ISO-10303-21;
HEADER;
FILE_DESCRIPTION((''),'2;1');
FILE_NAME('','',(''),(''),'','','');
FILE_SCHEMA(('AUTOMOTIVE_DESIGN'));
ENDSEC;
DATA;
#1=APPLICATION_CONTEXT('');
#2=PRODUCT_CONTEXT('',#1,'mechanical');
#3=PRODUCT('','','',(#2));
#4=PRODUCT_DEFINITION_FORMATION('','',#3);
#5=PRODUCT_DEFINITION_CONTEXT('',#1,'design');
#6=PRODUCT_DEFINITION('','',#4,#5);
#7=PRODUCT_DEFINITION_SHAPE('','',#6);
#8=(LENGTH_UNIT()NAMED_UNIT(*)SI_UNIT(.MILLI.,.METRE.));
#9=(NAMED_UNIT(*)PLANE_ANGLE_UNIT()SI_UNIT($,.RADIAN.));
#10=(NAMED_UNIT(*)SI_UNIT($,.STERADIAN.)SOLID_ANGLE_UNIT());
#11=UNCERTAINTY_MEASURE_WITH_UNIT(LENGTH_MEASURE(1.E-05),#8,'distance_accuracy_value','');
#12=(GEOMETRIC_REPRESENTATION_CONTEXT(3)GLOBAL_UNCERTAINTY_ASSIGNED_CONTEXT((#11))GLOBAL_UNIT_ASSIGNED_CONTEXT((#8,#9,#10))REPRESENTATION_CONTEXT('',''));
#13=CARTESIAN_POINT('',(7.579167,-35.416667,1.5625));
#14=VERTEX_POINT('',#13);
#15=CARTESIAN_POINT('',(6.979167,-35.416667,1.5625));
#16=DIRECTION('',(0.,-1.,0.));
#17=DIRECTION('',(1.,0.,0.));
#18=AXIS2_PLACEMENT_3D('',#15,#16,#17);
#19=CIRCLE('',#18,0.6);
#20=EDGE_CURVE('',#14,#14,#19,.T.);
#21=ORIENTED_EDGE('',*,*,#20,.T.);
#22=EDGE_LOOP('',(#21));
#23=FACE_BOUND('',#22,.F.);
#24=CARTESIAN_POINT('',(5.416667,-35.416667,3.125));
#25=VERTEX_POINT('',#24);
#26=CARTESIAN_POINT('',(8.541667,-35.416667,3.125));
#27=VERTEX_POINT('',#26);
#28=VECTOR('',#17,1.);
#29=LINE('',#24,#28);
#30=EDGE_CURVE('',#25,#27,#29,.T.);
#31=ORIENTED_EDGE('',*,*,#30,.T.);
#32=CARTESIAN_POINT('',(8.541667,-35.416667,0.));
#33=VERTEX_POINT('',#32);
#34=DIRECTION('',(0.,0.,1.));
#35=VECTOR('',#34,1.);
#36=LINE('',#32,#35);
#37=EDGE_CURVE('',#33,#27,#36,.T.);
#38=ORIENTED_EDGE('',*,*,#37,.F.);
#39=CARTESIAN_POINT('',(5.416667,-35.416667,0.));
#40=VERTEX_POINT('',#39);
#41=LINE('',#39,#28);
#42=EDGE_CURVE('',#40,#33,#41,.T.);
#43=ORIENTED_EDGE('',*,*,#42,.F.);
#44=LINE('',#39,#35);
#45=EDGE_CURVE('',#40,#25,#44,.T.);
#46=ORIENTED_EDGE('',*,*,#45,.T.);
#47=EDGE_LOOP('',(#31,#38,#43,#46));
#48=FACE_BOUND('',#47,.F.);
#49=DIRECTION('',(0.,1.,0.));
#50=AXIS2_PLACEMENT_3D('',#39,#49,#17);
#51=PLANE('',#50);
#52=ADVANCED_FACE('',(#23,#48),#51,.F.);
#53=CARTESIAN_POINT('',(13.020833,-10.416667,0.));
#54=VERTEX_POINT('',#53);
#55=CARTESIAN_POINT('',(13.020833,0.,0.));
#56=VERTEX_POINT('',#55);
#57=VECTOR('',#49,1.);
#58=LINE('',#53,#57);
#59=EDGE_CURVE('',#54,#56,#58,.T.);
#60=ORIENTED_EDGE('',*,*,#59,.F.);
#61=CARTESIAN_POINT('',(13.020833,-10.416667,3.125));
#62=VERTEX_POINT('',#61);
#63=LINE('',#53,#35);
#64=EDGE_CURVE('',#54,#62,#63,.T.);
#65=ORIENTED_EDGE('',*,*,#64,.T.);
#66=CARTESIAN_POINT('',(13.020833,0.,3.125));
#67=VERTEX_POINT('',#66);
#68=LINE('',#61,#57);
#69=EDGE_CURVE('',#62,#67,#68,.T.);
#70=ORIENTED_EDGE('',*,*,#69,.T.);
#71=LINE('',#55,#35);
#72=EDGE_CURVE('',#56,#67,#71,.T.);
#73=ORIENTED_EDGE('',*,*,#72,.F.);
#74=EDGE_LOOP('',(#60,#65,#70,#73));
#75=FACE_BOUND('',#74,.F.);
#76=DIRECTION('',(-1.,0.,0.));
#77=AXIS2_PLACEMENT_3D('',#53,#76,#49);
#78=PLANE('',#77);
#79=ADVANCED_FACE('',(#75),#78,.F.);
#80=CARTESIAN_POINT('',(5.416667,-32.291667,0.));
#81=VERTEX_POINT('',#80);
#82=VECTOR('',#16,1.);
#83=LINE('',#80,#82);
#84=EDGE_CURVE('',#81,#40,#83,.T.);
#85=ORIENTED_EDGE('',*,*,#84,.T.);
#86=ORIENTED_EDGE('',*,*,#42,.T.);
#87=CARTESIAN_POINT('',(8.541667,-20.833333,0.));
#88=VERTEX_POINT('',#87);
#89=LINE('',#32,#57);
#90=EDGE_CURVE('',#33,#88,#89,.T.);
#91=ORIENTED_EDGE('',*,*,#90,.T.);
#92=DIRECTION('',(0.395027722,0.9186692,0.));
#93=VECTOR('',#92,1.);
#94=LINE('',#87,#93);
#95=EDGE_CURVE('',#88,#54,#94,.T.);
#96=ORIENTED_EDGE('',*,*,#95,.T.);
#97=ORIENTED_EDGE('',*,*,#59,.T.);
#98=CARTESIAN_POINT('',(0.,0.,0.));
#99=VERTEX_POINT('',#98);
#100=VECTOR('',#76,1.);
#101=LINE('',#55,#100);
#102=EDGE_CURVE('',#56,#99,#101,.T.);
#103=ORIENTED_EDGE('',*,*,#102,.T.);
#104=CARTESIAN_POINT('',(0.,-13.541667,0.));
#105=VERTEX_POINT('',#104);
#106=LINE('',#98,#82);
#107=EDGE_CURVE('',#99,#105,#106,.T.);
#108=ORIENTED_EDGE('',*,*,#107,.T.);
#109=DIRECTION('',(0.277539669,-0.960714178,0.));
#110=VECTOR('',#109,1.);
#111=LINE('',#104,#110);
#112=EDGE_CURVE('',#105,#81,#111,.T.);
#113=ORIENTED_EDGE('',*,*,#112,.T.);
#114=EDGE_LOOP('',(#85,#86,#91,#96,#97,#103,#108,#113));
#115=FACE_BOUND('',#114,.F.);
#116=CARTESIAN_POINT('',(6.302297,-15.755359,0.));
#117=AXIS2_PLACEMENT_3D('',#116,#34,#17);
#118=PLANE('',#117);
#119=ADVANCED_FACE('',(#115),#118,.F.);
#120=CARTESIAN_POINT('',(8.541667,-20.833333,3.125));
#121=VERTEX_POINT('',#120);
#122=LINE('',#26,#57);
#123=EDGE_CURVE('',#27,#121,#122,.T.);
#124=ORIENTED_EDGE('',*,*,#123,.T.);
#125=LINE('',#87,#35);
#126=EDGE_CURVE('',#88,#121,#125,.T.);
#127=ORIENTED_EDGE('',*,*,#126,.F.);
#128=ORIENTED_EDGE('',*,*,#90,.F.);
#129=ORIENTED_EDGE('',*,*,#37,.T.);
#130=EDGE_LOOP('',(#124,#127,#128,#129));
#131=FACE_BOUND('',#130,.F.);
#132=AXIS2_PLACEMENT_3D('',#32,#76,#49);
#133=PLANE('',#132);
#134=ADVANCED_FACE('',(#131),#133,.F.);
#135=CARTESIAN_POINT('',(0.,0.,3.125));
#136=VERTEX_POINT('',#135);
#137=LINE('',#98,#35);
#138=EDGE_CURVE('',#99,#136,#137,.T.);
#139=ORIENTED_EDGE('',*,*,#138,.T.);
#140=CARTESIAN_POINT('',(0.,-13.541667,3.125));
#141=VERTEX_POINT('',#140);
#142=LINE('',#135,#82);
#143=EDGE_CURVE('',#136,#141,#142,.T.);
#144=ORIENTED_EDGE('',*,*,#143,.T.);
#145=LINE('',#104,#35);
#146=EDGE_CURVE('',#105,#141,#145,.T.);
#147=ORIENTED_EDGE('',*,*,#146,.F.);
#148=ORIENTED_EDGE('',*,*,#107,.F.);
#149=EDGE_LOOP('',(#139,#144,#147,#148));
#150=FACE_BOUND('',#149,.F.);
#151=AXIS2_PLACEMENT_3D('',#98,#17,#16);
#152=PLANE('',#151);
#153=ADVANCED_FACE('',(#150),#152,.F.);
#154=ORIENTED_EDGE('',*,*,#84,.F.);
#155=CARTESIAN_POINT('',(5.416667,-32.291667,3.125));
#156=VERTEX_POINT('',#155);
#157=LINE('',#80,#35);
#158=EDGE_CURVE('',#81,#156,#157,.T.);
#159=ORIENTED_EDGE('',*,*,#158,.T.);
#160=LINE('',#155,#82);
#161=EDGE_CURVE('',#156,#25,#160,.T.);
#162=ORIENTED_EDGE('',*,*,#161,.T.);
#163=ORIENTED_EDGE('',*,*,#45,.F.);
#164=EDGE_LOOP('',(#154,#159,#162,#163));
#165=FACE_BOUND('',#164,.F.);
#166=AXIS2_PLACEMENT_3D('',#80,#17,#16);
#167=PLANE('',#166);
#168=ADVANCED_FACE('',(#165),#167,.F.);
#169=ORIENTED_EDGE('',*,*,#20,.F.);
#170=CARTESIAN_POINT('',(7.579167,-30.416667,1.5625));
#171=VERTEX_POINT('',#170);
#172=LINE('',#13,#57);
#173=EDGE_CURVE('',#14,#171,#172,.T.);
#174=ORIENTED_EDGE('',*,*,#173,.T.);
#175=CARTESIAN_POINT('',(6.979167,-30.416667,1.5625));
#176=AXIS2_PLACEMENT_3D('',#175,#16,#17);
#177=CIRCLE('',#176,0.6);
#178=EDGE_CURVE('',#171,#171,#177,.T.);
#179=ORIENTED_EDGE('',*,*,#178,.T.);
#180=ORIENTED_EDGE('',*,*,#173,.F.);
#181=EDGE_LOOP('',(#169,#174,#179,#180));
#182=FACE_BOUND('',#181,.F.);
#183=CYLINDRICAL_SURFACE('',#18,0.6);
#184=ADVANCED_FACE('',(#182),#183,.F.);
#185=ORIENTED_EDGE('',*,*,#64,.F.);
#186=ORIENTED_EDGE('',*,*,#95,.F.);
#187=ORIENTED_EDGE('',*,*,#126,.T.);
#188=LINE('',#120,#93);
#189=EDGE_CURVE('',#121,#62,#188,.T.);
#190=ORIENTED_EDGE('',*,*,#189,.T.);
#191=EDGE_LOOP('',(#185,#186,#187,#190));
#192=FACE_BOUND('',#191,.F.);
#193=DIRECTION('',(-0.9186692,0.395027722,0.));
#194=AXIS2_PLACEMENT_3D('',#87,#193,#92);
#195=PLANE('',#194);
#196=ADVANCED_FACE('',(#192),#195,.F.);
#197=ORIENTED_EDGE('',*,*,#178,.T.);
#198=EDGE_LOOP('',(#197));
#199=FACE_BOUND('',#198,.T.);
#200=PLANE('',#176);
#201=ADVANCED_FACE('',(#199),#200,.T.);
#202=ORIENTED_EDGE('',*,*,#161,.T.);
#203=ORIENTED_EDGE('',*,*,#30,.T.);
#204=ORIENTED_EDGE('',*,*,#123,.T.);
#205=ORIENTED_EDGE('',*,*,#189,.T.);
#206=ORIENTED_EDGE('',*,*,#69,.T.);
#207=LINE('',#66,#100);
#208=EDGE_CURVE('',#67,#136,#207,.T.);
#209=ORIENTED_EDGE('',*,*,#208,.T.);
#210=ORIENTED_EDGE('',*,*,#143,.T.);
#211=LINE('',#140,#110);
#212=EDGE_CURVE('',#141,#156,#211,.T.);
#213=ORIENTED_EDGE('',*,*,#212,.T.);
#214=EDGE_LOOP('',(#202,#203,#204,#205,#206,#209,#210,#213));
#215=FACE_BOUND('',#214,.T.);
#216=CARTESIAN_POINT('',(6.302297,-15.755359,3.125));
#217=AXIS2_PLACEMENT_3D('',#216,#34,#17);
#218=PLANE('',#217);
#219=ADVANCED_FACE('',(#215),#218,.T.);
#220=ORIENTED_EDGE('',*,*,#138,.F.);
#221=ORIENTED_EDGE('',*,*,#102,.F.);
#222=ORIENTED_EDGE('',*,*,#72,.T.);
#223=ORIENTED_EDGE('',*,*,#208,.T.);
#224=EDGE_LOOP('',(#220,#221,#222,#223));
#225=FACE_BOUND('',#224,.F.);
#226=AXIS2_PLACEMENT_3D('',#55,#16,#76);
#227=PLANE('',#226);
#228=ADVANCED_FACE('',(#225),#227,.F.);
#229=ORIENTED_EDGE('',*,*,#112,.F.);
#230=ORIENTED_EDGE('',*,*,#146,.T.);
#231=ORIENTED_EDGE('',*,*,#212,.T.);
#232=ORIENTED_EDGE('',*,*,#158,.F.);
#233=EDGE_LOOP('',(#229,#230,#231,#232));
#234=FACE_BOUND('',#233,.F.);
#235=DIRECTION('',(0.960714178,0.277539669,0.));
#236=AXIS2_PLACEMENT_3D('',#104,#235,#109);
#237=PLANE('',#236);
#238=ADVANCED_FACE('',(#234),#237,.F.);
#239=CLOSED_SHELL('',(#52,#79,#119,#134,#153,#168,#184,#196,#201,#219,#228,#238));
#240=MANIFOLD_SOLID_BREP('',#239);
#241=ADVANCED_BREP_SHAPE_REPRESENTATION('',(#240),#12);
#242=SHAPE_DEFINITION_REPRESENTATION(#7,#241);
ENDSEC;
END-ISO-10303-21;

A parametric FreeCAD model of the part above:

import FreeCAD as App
import Part
import Sketcher
from FreeCAD import Vector
Q = App.Units.Quantity

doc = App.newDocument("Part")
params = doc.addObject("Spreadsheet::Sheet", "Params")
for row, (alias, value) in enumerate([
    ("pad1_length", "3.125 mm"),
    ("sketch2_diameter", "1.2 mm"),
    ("pocket1_length", "5 mm"),
], start=1):
    params.set(f"A{row}", alias)
    params.set(f"B{row}", "=" + value)
    params.setAlias(f"B{row}", alias)

body = doc.addObject("PartDesign::Body", "Body")

# Sketch on XY plane
sketch1 = doc.addObject("Sketcher::SketchObject", "Sketch")
body.addObject(sketch1)
sketch1.AttachmentSupport = (doc.XY_Plane, [""])
sketch1.MapMode = "FlatFace"
sketch1.addGeometry([
    Part.LineSegment(Vector(13, 0, 0), Vector(0, 0, 0)),  # 0
    Part.LineSegment(Vector(0, 0, 0), Vector(0, -13.5, 0)),  # 1
    Part.LineSegment(Vector(0, -13.5, 0), Vector(5.4, -32.3, 0)),  # 2
    Part.LineSegment(Vector(5.4, -32.3, 0), Vector(5.4, -35.4, 0)),  # 3
    Part.LineSegment(Vector(5.4, -35.4, 0), Vector(8.5, -35.4, 0)),  # 4
    Part.LineSegment(Vector(8.5, -35.4, 0), Vector(8.5, -20.8, 0)),  # 5
    Part.LineSegment(Vector(8.5, -20.8, 0), Vector(13, -10.4, 0)),  # 6
    Part.LineSegment(Vector(13, -10.4, 0), Vector(13, 0, 0)),  # 7
], False)
sketch1.addConstraint([
    Sketcher.Constraint("Coincident", 0, 2, 1, 1),
    Sketcher.Constraint("Coincident", 1, 2, 2, 1),
    Sketcher.Constraint("Coincident", 2, 2, 3, 1),
    Sketcher.Constraint("Coincident", 3, 2, 4, 1),
    Sketcher.Constraint("Coincident", 4, 2, 5, 1),
    Sketcher.Constraint("Coincident", 5, 2, 6, 1),
    Sketcher.Constraint("Coincident", 6, 2, 7, 1),
    Sketcher.Constraint("Coincident", 7, 2, 0, 1),
    Sketcher.Constraint("Horizontal", 0),
    Sketcher.Constraint("Vertical", 1),
    Sketcher.Constraint("Vertical", 3),
    Sketcher.Constraint("Horizontal", 4),
    Sketcher.Constraint("Vertical", 5),
    Sketcher.Constraint("Vertical", 7),
    Sketcher.Constraint("Coincident", 0, 2, -1, 1),
    Sketcher.Constraint("Equal", 4, 3),
    Sketcher.Constraint("DistanceY", 4, 2, 6, 2, Q("25 mm")),
    Sketcher.Constraint("DistanceX", 4, 1, 4, 2, Q("3.125 mm")),
    Sketcher.Constraint("DistanceY", 2, 2, 1, 2, Q("18.75 mm")),
    Sketcher.Constraint("Distance", 2, Q("19.516731 mm")),
    Sketcher.Constraint("DistanceX", 0, 2, 0, 1, Q("13.020833 mm")),
    Sketcher.Constraint("DistanceY", 1, 2, 1, 1, Q("13.541667 mm")),
    Sketcher.Constraint("DistanceY", 5, 1, 5, 2, Q("14.583334 mm")),
])
pad1 = doc.addObject("PartDesign::Pad", "Pad")
body.addObject(pad1)
pad1.Profile = sketch1
pad1.setExpression("Length", "Params.pad1_length")

# Sketch on XZ plane
sketch2 = doc.addObject("Sketcher::SketchObject", "Sketch001")
body.addObject(sketch2)
sketch2.AttachmentSupport = (doc.XZ_Plane, [""])
sketch2.MapMode = "FlatFace"
sketch2.AttachmentOffset = App.Placement(Vector(0, 0, 35.416667), App.Rotation())
sketch2.addGeometry(Part.Circle(Vector(7, 1.6, 0), Vector(0, 0, 1), 0.6), False)
sketch2.addConstraint([
    Sketcher.Constraint("Diameter", 0, Q("1.2 mm")),
    Sketcher.Constraint("DistanceY", -1, 1, 0, 3, Q("1.5625 mm")),
    Sketcher.Constraint("DistanceX", -1, 1, 0, 3, Q("6.979167 mm")),
])
sketch2.setExpression("Constraints[0]", "Params.sketch2_diameter")
pocket1 = doc.addObject("PartDesign::Pocket", "Pocket")
body.addObject(pocket1)
pocket1.Profile = sketch2
pocket1.setExpression("Length", "Params.pocket1_length")

doc.recompute()
